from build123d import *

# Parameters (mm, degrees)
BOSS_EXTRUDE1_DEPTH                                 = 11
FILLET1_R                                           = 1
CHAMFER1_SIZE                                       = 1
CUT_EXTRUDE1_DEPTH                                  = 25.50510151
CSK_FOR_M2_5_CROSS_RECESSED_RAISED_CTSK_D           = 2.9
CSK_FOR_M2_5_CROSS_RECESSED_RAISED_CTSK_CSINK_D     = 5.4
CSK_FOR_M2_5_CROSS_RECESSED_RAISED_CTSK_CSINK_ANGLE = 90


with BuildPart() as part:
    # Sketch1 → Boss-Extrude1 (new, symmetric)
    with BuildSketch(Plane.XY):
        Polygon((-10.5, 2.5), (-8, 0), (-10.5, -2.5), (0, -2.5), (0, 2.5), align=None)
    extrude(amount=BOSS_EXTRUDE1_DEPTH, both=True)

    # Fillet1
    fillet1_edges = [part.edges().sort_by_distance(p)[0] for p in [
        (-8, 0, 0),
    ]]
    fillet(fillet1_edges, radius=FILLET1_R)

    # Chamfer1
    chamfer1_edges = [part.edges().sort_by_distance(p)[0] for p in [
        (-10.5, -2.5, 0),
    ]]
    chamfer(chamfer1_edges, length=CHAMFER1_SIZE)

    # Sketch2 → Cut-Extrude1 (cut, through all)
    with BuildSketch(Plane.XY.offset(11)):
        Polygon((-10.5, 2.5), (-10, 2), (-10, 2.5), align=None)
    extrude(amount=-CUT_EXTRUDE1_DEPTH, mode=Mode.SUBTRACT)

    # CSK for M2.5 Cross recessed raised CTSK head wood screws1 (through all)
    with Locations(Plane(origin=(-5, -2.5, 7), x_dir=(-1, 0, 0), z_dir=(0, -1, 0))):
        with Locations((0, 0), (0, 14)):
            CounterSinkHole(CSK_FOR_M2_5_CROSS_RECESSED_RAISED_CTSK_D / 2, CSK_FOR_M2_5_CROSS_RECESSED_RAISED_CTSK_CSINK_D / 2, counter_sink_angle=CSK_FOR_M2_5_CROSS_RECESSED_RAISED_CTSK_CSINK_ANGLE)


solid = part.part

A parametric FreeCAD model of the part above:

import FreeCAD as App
import Part
import Sketcher

V = App.Vector


def edges_at(feature, points):
    """Names of the edges that pass closest to the given points."""
    edges = feature.Shape.Edges
    near = lambda p: min(range(len(edges)), key=lambda i: edges[i].distToShape(Part.Vertex(*p))[0])
    return sorted({f"Edge{near(p) + 1}" for p in points})

doc = App.newDocument("Part")
params = doc.addObject("Spreadsheet::Sheet", "Params")
for row, (alias, value) in enumerate([
    ("sketch1_height", "5 mm"),
    ("sketch1_width", "10.5 mm"),
    ("pad1_length", "22 mm"),
    ("fillet_radius", "1 mm"),
    ("chamfer_size", "1 mm"),
    ("sketch2_width", "0.5 mm"),
    ("sketch3_diameter", "2.9 mm"),
    ("hole_diameter", "2.9 mm"),
    ("hole_csink_diameter", "5.4 mm"),
], start=1):
    params.set(f"A{row}", alias)
    params.set(f"B{row}", "=" + value)
    params.setAlias(f"B{row}", alias)

body = doc.addObject("PartDesign::Body", "Body")

sketch1 = body.newObject("Sketcher::SketchObject", "Sketch")
sketch1.AttachmentSupport = (doc.getObject("XY_Plane"), [""])
sketch1.MapMode = "FlatFace"
sketch1.addGeometry(Part.LineSegment(V(-10.5, 2.5, 0), V(-8, 0, 0)), False)
sketch1.addGeometry(Part.LineSegment(V(-8, 0, 0), V(-10.5, -2.5, 0)), False)
sketch1.addGeometry(Part.LineSegment(V(-10.5, -2.5, 0), V(0, -2.5, 0)), False)
sketch1.addGeometry(Part.LineSegment(V(0, -2.5, 0), V(0, 2.5, 0)), False)
sketch1.addGeometry(Part.LineSegment(V(0, 2.5, 0), V(-10.5, 2.5, 0)), False)
sketch1.addConstraint(Sketcher.Constraint("Coincident", 0, 2, 1, 1))
sketch1.addConstraint(Sketcher.Constraint("Coincident", 1, 2, 2, 1))
sketch1.addConstraint(Sketcher.Constraint("Coincident", 2, 2, 3, 1))
sketch1.addConstraint(Sketcher.Constraint("Coincident", 3, 2, 4, 1))
sketch1.addConstraint(Sketcher.Constraint("Coincident", 4, 2, 0, 1))
sketch1.addConstraint(Sketcher.Constraint("Horizontal", 2))
sketch1.addConstraint(Sketcher.Constraint("Vertical", 3))
sketch1.addConstraint(Sketcher.Constraint("Horizontal", 4))
sketch1.addConstraint(Sketcher.Constraint("Symmetric", 2, 2, 3, 2, -1, 1))
sketch1.addConstraint(Sketcher.Constraint("PointOnObject", 0, 2, -1))
sketch1.addConstraint(Sketcher.Constraint("Perpendicular", 0, 1))
sketch1.addConstraint(Sketcher.Constraint("Vertical", 1, 2, 4, 2))
sketch1.addConstraint(Sketcher.Constraint("DistanceY", 3, 1, 3, 2, 5.0))
sketch1.addConstraint(Sketcher.Constraint("DistanceX", 2, 1, 2, 2, 10.5))
sketch1.setExpression("Constraints[12]", "Params.sketch1_height")
sketch1.setExpression("Constraints[13]", "Params.sketch1_width")
pad1 = body.newObject("PartDesign::Pad", "Pad")
pad1.Profile = sketch1
pad1.setExpression("Length", "Params.pad1_length")
pad1.Midplane = True
doc.recompute()

fillet = body.newObject("PartDesign::Fillet", "Fillet")
fillet.Base = (pad1, edges_at(pad1, [(-8, 0, 0)]))
fillet.setExpression("Radius", "Params.fillet_radius")
doc.recompute()

chamfer = body.newObject("PartDesign::Chamfer", "Chamfer")
chamfer.Base = (fillet, edges_at(fillet, [(-10.5, -2.5, 0)]))
chamfer.setExpression("Size", "Params.chamfer_size")

sketch2 = body.newObject("Sketcher::SketchObject", "Sketch001")
sketch2.AttachmentSupport = (doc.getObject("XY_Plane"), [""])
sketch2.MapMode = "FlatFace"
sketch2.AttachmentOffset = App.Placement(V(0, 0, 11), App.Rotation())
sketch2.addGeometry(Part.LineSegment(V(-10.5, 2.5, 0), V(-10, 2, 0)), False)
sketch2.addGeometry(Part.LineSegment(V(-10, 2, 0), V(-10, 2.5, 0)), False)
sketch2.addGeometry(Part.LineSegment(V(-10, 2.5, 0), V(-10.5, 2.5, 0)), False)
sketch2.addConstraint(Sketcher.Constraint("Coincident", 0, 2, 1, 1))
sketch2.addConstraint(Sketcher.Constraint("Coincident", 1, 2, 2, 1))
sketch2.addConstraint(Sketcher.Constraint("Coincident", 2, 2, 0, 1))
sketch2.addConstraint(Sketcher.Constraint("Vertical", 1))
sketch2.addConstraint(Sketcher.Constraint("Horizontal", 2))
sketch2.addConstraint(Sketcher.Constraint("Equal", 2, 1))
sketch2.addConstraint(Sketcher.Constraint("DistanceX", 2, 2, 2, 1, 0.5))
sketch2.addConstraint(Sketcher.Constraint("DistanceX", 0, 2, -1, 1, 10.0))
sketch2.addConstraint(Sketcher.Constraint("DistanceY", -1, 1, 0, 2, 2.0))
sketch2.setExpression("Constraints[6]", "Params.sketch2_width")
pocket1 = body.newObject("PartDesign::Pocket", "Pocket")
pocket1.Profile = sketch2
pocket1.Type = "ThroughAll"

sketch3 = body.newObject("Sketcher::SketchObject", "Sketch002")
sketch3.AttachmentSupport = (doc.getObject("XZ_Plane"), [""])
sketch3.MapMode = "FlatFace"
sketch3.AttachmentOffset = App.Placement(V(0, 0, 2.5), App.Rotation())
sketch3.addGeometry(Part.Circle(V(-5, 7, 0), V(0, 0, 1), 1.4), False)
sketch3.addGeometry(Part.Circle(V(-5, -7, 0), V(0, 0, 1), 1.4), False)
sketch3.addConstraint(Sketcher.Constraint("Equal", 0, 1))
sketch3.addConstraint(Sketcher.Constraint("Symmetric", 0, 3, 1, 3, -1))
sketch3.addConstraint(Sketcher.Constraint("Diameter", 0, 2.9))
sketch3.addConstraint(Sketcher.Constraint("DistanceX", 0, 3, -1, 1, 5.0))
sketch3.addConstraint(Sketcher.Constraint("DistanceY", -1, 1, 0, 3, 7.0))
sketch3.setExpression("Constraints[2]", "Params.sketch3_diameter")
doc.recompute()
hole = body.newObject("PartDesign::Hole", "Hole")
hole.Profile = sketch3
hole.ThreadType = "None"
hole.setExpression("Diameter", "Params.hole_diameter")
hole.DepthType = "ThroughAll"
hole.HoleCutType = "Countersink"
hole.setExpression("HoleCutDiameter", "Params.hole_csink_diameter")
hole.HoleCutCountersinkAngle = 90

doc.recompute()
